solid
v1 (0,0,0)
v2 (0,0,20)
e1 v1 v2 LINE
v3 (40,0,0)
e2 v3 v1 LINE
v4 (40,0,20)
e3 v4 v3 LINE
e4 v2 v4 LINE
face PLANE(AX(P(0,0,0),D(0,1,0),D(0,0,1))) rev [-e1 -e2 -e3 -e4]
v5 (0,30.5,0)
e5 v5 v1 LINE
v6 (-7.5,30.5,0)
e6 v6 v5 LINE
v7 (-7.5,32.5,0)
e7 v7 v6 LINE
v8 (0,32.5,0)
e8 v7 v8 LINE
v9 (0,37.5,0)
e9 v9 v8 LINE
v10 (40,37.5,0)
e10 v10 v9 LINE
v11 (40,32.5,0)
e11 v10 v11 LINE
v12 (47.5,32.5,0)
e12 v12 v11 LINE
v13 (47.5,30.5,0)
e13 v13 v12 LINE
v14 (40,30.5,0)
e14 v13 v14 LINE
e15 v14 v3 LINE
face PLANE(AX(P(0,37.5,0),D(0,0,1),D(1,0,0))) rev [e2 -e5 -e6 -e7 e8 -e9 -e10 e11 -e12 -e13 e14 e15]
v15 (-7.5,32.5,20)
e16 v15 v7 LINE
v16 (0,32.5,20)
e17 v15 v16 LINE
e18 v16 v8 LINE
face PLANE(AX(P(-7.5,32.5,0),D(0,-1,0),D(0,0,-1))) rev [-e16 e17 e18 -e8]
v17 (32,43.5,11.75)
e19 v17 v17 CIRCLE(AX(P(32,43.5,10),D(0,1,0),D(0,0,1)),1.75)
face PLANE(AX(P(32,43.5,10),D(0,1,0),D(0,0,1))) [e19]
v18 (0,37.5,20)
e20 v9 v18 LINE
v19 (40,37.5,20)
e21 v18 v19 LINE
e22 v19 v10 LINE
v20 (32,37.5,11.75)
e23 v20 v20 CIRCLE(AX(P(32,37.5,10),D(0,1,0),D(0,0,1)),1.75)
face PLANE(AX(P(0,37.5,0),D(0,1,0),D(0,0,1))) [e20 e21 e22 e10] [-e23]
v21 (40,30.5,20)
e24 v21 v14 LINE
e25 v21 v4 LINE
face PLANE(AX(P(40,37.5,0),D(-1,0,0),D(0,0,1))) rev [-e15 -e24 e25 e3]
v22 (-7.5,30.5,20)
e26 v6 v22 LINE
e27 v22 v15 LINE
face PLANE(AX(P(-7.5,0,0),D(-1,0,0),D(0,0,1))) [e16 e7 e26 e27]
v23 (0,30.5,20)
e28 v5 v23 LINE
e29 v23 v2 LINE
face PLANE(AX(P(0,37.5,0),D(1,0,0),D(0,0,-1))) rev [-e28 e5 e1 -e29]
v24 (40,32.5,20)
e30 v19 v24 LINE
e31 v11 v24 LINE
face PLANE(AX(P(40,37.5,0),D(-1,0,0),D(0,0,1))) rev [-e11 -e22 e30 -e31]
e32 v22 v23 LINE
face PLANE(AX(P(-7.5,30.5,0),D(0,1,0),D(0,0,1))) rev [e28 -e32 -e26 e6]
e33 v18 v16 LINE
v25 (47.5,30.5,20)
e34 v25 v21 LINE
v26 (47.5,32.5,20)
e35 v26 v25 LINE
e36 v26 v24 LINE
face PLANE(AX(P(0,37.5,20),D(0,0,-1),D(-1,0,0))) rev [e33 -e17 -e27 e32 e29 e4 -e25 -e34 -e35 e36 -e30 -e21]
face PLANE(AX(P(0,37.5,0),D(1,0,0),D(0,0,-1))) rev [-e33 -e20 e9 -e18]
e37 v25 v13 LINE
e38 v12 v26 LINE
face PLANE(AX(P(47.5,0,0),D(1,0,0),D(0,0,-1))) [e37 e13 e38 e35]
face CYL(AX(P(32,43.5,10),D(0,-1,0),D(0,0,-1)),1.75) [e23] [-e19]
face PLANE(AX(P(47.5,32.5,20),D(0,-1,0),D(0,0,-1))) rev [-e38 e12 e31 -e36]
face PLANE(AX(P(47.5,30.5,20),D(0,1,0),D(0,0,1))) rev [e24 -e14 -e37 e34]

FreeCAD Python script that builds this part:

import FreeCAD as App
import Part
import Sketcher


def add_polygon(sketch, points):
    """Adds a closed chain of lines whose ends are joined by coincident constraints."""
    first, n = sketch.GeometryCount, len(points)
    for a, b in zip(points, points[1:] + points[:1]):
        sketch.addGeometry(Part.LineSegment(App.Vector(*a, 0), App.Vector(*b, 0)), False)
    for i in range(n):
        sketch.addConstraint(Sketcher.Constraint("Coincident", first + i, 2, first + (i + 1) % n, 1))

doc = App.newDocument("Part")
body = doc.addObject("PartDesign::Body", "Body")

sketch1 = body.newObject("Sketcher::SketchObject", "Sketch")
sketch1.AttachmentSupport = (doc.getObject("XZ_Plane"), [""])
sketch1.MapMode = "FlatFace"
add_polygon(sketch1, [(0, 0), (0, 20), (40, 20), (40, 0)])
sketch1.addConstraint(Sketcher.Constraint("Vertical", 0))
sketch1.addConstraint(Sketcher.Constraint("Horizontal", 1))
sketch1.addConstraint(Sketcher.Constraint("Vertical", 2))
sketch1.addConstraint(Sketcher.Constraint("Horizontal", 3))
sketch1.addConstraint(Sketcher.Constraint("Coincident", 3, 2, -1, 1))
sketch1.addConstraint(Sketcher.Constraint("DistanceX", 1, 1, 1, 2, 40.0))
sketch1.addConstraint(Sketcher.Constraint("DistanceY", 0, 1, 0, 2, 20.0))
pad1 = body.newObject("PartDesign::Pad", "Pad")
pad1.Profile = sketch1
pad1.Length = 37.5
pad1.Reversed = True

sketch2 = body.newObject("Sketcher::SketchObject", "Sketch001")
sketch2.AttachmentSupport = (doc.getObject("YZ_Plane"), [""])
sketch2.MapMode = "FlatFace"
sketch2.AttachmentOffset = App.Placement(App.Vector(0, 0, 40), App.Rotation())
add_polygon(sketch2, [(32.5, 20), (30.5, 20), (30.5, 0), (32.5, 0)])
sketch2.addConstraint(Sketcher.Constraint("Horizontal", 0))
sketch2.addConstraint(Sketcher.Constraint("Vertical", 1))
sketch2.addConstraint(Sketcher.Constraint("Horizontal", 2))
sketch2.addConstraint(Sketcher.Constraint("Vertical", 3))
sketch2.addConstraint(Sketcher.Constraint("PointOnObject", 1, 2, -1))
sketch2.addConstraint(Sketcher.Constraint("DistanceX", 0, 2, 0, 1, 2.0))
sketch2.addConstraint(Sketcher.Constraint("DistanceY", 1, 2, 1, 1, 20.0))
sketch2.addConstraint(Sketcher.Constraint("DistanceX", -1, 1, 0, 2, 30.5))
pad2 = body.newObject("PartDesign::Pad", "Pad001")
pad2.Profile = sketch2
pad2.Length = 7.5

sketch3 = body.newObject("Sketcher::SketchObject", "Sketch002")
sketch3.AttachmentSupport = (doc.getObject("YZ_Plane"), [""])
sketch3.MapMode = "FlatFace"
add_polygon(sketch3, [(32.5, 0), (30.5, 0), (30.5, 20), (32.5, 20)])
sketch3.addConstraint(Sketcher.Constraint("Horizontal", 0))
sketch3.addConstraint(Sketcher.Constraint("Vertical", 1))
sketch3.addConstraint(Sketcher.Constraint("Horizontal", 2))
sketch3.addConstraint(Sketcher.Constraint("Vertical", 3))
sketch3.addConstraint(Sketcher.Constraint("PointOnObject", 0, 2, -1))
sketch3.addConstraint(Sketcher.Constraint("DistanceX", 0, 2, 0, 1, 2.0))
sketch3.addConstraint(Sketcher.Constraint("DistanceY", 1, 1, 1, 2, 20.0))
sketch3.addConstraint(Sketcher.Constraint("DistanceX", -1, 1, 0, 2, 30.5))
pad3 = body.newObject("PartDesign::Pad", "Pad002")
pad3.Profile = sketch3
pad3.Length = 7.5
pad3.Reversed = True

sketch4 = body.newObject("Sketcher::SketchObject", "Sketch003")
sketch4.AttachmentSupport = (doc.getObject("XZ_Plane"), [""])
sketch4.MapMode = "FlatFace"
sketch4.AttachmentOffset = App.Placement(App.Vector(0, 0, -37.5), App.Rotation())
sketch4.addGeometry(Part.Circle(App.Vector(32, 10, 0), App.Vector(0, 0, 1), 1.75), False)
sketch4.addConstraint(Sketcher.Constraint("Diameter", 0, 3.5))
sketch4.addConstraint(Sketcher.Constraint("DistanceX", -1, 1, 0, 3, 32.0))
sketch4.addConstraint(Sketcher.Constraint("DistanceY", -1, 1, 0, 3, 10.0))
pad4 = body.newObject("PartDesign::Pad", "Pad003")
pad4.Profile = sketch4
pad4.Length = 6
pad4.Reversed = True

doc.recompute()
